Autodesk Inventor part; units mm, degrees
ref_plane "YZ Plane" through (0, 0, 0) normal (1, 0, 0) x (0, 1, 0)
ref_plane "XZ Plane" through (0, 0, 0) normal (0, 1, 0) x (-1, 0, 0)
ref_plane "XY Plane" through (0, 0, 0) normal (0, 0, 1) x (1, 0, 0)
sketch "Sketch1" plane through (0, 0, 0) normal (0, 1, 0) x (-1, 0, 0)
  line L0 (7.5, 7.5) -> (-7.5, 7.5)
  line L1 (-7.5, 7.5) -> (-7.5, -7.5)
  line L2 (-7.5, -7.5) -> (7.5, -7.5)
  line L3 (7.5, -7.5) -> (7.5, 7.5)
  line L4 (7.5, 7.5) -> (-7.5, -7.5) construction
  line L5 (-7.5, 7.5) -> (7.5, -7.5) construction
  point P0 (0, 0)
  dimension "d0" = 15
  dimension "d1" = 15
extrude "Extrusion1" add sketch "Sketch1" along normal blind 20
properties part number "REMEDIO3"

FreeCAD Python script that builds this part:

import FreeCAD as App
import Part
import Sketcher
from FreeCAD import Vector


def add_polygon(sketch, points):
    """Adds a closed chain of lines whose ends are joined by coincident constraints."""
    first, n = sketch.GeometryCount, len(points)
    for a, b in zip(points, points[1:] + points[:1]):
        sketch.addGeometry(Part.LineSegment(App.Vector(*a, 0), App.Vector(*b, 0)), False)
    for i in range(n):
        sketch.addConstraint(Sketcher.Constraint("Coincident", first + i, 2, first + (i + 1) % n, 1))

doc = App.newDocument("Part")
body = doc.addObject("PartDesign::Body", "Body")

# Sketch on XZ plane
sketch1 = body.newObject("Sketcher::SketchObject", "Sketch")
sketch1.AttachmentSupport = (doc.getObject("XZ_Plane"), [""])
sketch1.MapMode = "FlatFace"
add_polygon(sketch1, [(-7.5, -7.5), (-7.5, 7.5), (7.5, 7.5), (7.5, -7.5)])  # lines 0-3
sketch1.addConstraint([
    Sketcher.Constraint("Vertical", 0),
    Sketcher.Constraint("Horizontal", 1),
    Sketcher.Constraint("Vertical", 2),
    Sketcher.Constraint("Horizontal", 3),
    Sketcher.Constraint("Symmetric", 0, 2, 2, 2, -1, 1),
    Sketcher.Constraint("Equal", 3, 0),
    Sketcher.Constraint("DistanceX", 1, 1, 1, 2, 15.0),
])
pad1 = body.newObject("PartDesign::Pad", "Pad")
pad1.Profile = sketch1
pad1.Length = 20
pad1.Reversed = True

doc.recompute()
